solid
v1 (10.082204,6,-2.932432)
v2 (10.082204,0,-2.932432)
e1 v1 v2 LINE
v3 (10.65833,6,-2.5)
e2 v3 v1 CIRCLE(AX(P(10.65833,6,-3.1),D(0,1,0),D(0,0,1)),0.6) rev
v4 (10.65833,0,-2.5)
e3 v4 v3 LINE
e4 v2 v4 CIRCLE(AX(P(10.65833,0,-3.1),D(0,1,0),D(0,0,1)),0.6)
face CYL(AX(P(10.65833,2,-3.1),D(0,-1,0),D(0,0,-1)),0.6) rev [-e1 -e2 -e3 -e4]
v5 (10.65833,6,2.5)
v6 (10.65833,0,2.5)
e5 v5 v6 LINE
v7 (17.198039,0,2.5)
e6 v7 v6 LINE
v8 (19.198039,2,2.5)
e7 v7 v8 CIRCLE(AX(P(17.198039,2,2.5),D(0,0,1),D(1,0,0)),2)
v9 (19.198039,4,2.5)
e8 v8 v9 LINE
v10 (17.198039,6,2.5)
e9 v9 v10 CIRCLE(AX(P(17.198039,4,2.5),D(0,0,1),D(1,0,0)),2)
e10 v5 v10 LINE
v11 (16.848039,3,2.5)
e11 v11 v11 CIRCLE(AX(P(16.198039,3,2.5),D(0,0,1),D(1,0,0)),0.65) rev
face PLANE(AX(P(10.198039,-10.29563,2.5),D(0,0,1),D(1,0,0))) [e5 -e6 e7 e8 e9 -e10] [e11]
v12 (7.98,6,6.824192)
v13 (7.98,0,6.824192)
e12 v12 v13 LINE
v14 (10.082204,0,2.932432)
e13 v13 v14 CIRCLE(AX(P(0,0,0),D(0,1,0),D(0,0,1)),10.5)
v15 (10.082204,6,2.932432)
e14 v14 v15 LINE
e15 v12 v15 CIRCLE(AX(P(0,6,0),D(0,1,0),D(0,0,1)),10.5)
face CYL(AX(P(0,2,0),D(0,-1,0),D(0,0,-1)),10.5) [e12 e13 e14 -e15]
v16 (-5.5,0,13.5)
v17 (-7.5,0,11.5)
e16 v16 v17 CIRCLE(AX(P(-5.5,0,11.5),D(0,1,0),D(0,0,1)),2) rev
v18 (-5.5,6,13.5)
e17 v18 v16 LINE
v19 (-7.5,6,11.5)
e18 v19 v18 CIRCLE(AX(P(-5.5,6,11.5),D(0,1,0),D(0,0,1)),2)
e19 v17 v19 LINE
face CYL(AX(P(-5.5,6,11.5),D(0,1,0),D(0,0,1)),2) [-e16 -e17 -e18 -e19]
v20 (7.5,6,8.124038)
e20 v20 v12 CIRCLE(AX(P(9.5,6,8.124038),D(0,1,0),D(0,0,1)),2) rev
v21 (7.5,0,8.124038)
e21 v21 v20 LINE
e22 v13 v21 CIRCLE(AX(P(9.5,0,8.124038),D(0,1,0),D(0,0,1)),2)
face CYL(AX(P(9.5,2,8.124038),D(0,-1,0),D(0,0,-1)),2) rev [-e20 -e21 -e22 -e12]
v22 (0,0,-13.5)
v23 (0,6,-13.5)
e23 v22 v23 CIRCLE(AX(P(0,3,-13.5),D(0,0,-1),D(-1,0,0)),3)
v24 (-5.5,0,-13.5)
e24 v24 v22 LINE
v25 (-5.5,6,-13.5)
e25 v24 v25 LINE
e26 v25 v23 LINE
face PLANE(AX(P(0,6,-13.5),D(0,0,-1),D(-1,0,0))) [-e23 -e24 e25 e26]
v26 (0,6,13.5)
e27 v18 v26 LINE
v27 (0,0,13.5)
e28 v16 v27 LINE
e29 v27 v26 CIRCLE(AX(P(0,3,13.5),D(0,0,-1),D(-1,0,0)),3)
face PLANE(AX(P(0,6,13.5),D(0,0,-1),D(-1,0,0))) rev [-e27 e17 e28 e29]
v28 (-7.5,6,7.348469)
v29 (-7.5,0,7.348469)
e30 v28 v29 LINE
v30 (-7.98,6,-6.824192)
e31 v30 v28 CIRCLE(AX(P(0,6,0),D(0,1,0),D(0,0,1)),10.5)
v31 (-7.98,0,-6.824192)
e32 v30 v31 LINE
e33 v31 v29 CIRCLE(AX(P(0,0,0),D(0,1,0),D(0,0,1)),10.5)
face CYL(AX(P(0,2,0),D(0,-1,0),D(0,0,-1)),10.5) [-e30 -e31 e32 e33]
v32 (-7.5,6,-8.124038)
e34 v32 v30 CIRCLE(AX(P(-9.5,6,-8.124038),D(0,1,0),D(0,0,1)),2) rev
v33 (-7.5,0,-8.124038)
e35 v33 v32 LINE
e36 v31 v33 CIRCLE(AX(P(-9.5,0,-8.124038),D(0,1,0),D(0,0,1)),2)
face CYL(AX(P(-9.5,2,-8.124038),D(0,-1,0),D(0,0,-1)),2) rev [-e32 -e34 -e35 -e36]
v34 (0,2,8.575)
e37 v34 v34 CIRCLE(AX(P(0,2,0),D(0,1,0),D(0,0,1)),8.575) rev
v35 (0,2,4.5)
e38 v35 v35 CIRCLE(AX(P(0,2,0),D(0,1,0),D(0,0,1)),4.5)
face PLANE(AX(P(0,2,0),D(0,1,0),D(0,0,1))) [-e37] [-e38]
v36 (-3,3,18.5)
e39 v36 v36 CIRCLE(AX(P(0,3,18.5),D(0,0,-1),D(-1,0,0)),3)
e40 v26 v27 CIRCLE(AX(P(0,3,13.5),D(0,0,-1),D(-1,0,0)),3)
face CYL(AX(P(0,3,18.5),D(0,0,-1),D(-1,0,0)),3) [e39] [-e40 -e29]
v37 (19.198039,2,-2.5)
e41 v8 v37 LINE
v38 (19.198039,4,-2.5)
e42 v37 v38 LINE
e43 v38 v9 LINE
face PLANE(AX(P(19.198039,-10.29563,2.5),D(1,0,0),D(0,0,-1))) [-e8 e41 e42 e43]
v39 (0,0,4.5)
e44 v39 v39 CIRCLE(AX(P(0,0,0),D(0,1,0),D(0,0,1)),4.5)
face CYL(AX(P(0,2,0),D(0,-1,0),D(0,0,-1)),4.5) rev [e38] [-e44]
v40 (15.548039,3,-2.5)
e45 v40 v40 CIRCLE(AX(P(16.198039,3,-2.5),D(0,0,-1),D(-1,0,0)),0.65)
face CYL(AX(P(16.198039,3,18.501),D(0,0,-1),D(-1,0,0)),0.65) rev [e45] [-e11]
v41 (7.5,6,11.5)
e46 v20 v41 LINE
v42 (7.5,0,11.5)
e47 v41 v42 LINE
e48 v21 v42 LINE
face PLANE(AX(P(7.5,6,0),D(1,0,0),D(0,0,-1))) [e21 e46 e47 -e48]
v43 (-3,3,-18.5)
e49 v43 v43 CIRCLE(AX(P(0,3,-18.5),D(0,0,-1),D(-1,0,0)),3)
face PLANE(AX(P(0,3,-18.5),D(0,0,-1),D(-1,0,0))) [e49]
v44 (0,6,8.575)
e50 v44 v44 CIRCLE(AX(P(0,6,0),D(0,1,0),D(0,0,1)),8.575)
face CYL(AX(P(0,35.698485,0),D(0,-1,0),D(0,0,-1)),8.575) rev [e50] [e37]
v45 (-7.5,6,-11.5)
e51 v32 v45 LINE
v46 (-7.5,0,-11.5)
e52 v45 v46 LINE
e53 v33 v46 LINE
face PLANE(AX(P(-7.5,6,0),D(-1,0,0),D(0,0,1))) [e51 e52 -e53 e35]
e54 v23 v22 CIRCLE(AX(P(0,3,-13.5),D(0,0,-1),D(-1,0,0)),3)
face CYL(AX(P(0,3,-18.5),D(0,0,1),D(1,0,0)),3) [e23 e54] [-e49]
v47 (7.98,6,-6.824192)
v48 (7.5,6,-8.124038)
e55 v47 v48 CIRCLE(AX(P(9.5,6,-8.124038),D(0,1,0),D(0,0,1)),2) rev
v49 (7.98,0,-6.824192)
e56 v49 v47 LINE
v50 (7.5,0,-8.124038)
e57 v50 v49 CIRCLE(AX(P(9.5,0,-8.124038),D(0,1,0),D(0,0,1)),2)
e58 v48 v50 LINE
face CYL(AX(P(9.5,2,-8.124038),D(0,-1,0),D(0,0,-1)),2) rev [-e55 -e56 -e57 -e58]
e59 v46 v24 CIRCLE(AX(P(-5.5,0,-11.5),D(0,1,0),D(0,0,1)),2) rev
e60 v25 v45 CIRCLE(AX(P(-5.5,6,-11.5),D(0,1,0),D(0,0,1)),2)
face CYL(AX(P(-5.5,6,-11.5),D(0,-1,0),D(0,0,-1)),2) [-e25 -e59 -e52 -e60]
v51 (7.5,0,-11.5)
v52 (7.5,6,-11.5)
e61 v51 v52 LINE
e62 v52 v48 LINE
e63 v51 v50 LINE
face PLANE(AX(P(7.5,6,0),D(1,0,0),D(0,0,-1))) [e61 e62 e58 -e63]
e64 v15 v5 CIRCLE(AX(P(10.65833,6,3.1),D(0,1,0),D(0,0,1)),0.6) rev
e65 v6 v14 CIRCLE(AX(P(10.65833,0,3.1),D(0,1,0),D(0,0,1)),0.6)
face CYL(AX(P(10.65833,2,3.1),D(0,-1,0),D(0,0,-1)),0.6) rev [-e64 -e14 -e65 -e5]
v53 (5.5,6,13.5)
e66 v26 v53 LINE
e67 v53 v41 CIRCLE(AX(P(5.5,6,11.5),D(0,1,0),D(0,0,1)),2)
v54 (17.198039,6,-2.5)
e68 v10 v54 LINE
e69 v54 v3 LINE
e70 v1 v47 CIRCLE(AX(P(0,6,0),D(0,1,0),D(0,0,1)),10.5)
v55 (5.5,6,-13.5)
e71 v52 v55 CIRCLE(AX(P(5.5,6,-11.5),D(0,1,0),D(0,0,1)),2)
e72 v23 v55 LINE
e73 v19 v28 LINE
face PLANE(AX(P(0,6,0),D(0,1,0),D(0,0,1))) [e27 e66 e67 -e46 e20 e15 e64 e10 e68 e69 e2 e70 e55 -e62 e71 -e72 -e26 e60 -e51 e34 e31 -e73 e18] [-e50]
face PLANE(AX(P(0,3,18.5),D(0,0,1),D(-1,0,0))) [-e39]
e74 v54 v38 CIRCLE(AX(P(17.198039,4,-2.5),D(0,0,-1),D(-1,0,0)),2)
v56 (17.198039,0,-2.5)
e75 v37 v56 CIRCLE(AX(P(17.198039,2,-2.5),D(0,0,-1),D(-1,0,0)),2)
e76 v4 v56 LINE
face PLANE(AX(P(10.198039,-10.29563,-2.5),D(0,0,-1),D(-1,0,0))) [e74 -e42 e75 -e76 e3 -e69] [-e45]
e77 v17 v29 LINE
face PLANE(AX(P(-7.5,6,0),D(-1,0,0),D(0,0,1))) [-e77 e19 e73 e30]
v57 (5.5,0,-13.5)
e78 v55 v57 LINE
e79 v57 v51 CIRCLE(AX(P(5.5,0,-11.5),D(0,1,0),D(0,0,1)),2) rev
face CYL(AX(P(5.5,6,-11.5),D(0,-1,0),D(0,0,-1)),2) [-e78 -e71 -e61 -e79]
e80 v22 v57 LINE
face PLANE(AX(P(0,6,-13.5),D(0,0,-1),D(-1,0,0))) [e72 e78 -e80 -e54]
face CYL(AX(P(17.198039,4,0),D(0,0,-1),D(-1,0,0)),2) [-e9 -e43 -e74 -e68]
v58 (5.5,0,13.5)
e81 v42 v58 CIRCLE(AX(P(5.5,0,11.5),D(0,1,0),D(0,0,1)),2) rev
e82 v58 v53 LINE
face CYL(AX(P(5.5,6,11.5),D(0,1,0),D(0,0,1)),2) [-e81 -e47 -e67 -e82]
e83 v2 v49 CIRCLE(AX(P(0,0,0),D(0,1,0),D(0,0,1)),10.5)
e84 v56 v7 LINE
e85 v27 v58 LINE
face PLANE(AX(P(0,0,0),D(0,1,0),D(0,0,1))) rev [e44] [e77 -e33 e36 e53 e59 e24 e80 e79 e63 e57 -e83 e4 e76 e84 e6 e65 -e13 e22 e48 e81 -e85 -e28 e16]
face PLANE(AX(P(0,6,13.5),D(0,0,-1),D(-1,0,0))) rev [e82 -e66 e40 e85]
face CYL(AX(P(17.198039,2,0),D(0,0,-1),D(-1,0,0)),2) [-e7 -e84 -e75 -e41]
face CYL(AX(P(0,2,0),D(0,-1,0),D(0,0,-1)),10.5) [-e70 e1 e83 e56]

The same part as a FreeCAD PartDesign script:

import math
import FreeCAD as App
import Part
import Sketcher
Q = App.Units.Quantity


def edges_at(feature, points):
    """Names of the edges that pass closest to the given points."""
    edges = feature.Shape.Edges
    near = lambda p: min(range(len(edges)), key=lambda i: edges[i].distToShape(Part.Vertex(*p))[0])
    return sorted({f"Edge{near(p) + 1}" for p in points})

doc = App.newDocument("Part")
body = doc.addObject("PartDesign::Body", "Body")

sketch1 = body.newObject("Sketcher::SketchObject", "Sketch")
sketch1.AttachmentSupport = (doc.getObject("XZ_Plane"), [""])
sketch1.MapMode = "FlatFace"
sketch1.addGeometry([
    Part.LineSegment(App.Vector(-8, -14, 0), App.Vector(-8, -7, 0)),
    Part.ArcOfCircle(Part.Circle(App.Vector(0, 0, 0), App.Vector(0, 0, 1), 10), math.radians(-136), math.radians(-44)),
    Part.LineSegment(App.Vector(8, -7, 0), App.Vector(8, -14, 0)),
    Part.LineSegment(App.Vector(8, -14, 0), App.Vector(-8, -14, 0)),
], False)
sketch1.addConstraint([
    Sketcher.Constraint("Coincident", 0, 2, 1, 1),
    Sketcher.Constraint("Coincident", 1, 2, 2, 1),
    Sketcher.Constraint("Coincident", 2, 2, 3, 1),
    Sketcher.Constraint("Coincident", 3, 2, 0, 1),
    Sketcher.Constraint("Vertical", 0),
    Sketcher.Constraint("Vertical", 2),
    Sketcher.Constraint("Horizontal", 3),
    Sketcher.Constraint("Coincident", 1, 3, -1, 1),
    Sketcher.Constraint("Horizontal", 0, 2, 1, 2),
    Sketcher.Constraint("Radius", 1, Q("10.5 mm")),
    Sketcher.Constraint("DistanceX", 3, 2, 3, 1, Q("15 mm")),
    Sketcher.Constraint("DistanceY", 2, 2, -1, 1, Q("13.5 mm")),
])
pad1 = body.newObject("PartDesign::Pad", "Pad")
pad1.Profile = sketch1
pad1.Length = 6
pad1.Reversed = True
body2 = doc.addObject("PartDesign::Body", "Body001")

sketch2 = body2.newObject("Sketcher::SketchObject", "Sketch001")
sketch2.AttachmentSupport = (doc.getObject("XZ_Plane001"), [""])
sketch2.MapMode = "FlatFace"
sketch2.addGeometry([
    Part.ArcOfCircle(Part.Circle(App.Vector(0, 0, 0), App.Vector(0, 0, 1), 10), math.radians(44), math.radians(136)),
    Part.LineSegment(App.Vector(-8, 7, 0), App.Vector(-8, 14, 0)),
    Part.LineSegment(App.Vector(-8, 14, 0), App.Vector(8, 14, 0)),
    Part.LineSegment(App.Vector(8, 14, 0), App.Vector(8, 7, 0)),
], False)
sketch2.addConstraint([
    Sketcher.Constraint("Coincident", 0, 2, 1, 1),
    Sketcher.Constraint("Coincident", 1, 2, 2, 1),
    Sketcher.Constraint("Coincident", 2, 2, 3, 1),
    Sketcher.Constraint("Coincident", 3, 2, 0, 1),
    Sketcher.Constraint("Vertical", 1),
    Sketcher.Constraint("Horizontal", 2),
    Sketcher.Constraint("Vertical", 3),
    Sketcher.Constraint("Coincident", 0, 3, -1, 1),
    Sketcher.Constraint("Horizontal", 0, 2, 3, 2),
    Sketcher.Constraint("Radius", 0, Q("10.5 mm")),
    Sketcher.Constraint("DistanceX", 2, 1, 2, 2, Q("15 mm")),
    Sketcher.Constraint("DistanceY", -1, 1, 1, 2, Q("13.5 mm")),
])
pad2 = body2.newObject("PartDesign::Pad", "Pad001")
pad2.Profile = sketch2
pad2.Length = 6
pad2.Reversed = True
body.AllowCompound = True
doc.recompute()

boolean = body.newObject("PartDesign::Boolean", "Boolean")
boolean.Type = "Fuse"
boolean.addObjects([body2])

sketch3 = body.newObject("Sketcher::SketchObject", "Sketch002")
sketch3.AttachmentSupport = (doc.getObject("XZ_Plane"), [""])
sketch3.MapMode = "FlatFace"
sketch3.addGeometry([
    Part.Circle(App.Vector(0, 0, 0), App.Vector(0, 0, 1), 10.5),
    Part.Circle(App.Vector(0, 0, 0), App.Vector(0, 0, 1), 4.5),
], False)
sketch3.addConstraint([
    Sketcher.Constraint("Coincident", 0, 3, -1, 1),
    Sketcher.Constraint("Coincident", 1, 3, -1, 1),
    Sketcher.Constraint("Diameter", 0, Q("21 mm")),
    Sketcher.Constraint("Diameter", 1, Q("9 mm")),
])
pad3 = body.newObject("PartDesign::Pad", "Pad002")
pad3.Profile = sketch3
pad3.Length = 2
pad3.Reversed = True

sketch4 = body.newObject("Sketcher::SketchObject", "Sketch003")
sketch4.AttachmentSupport = (doc.getObject("XZ_Plane"), [""])
sketch4.MapMode = "FlatFace"
sketch4.AttachmentOffset = App.Placement(App.Vector(0, 0, -2), App.Rotation())
sketch4.addGeometry([
    Part.ArcOfCircle(Part.Circle(App.Vector(0, 0, 0), App.Vector(0, 0, 1), 10), math.radians(-136), math.radians(-44)),
    Part.ArcOfCircle(Part.Circle(App.Vector(0, 0, 0), App.Vector(0, 0, 1), 10), math.radians(136), math.radians(224)),
    Part.ArcOfCircle(Part.Circle(App.Vector(0, 0, 0), App.Vector(0, 0, 1), 10), math.radians(44), math.radians(136)),
    Part.ArcOfCircle(Part.Circle(App.Vector(0, 0, 0), App.Vector(0, 0, 1), 10), math.radians(-44), math.radians(44)),
    Part.Circle(App.Vector(0, 0, 0), App.Vector(0, 0, 1), 9),
], False)
sketch4.addConstraint([
    Sketcher.Constraint("Tangent", 0, 1, 1, 2),
    Sketcher.Constraint("Tangent", 1, 1, 2, 2),
    Sketcher.Constraint("Tangent", 2, 1, 3, 2),
    Sketcher.Constraint("Tangent", 3, 1, 0, 2),
    Sketcher.Constraint("Coincident", 0, 3, -1, 1),
    Sketcher.Constraint("Coincident", 4, 3, -1, 1),
    Sketcher.Constraint("Equal", 0, 1),
    Sketcher.Constraint("Horizontal", 1, 1, 2, 1),
    Sketcher.Constraint("Horizontal", 0, 1, 3, 1),
    Sketcher.Constraint("Vertical", 0, 1, 1, 1),
    Sketcher.Constraint("Radius", 0, Q("10.5 mm")),
    Sketcher.Constraint("Diameter", 4, Q("17.15 mm")),
    Sketcher.Constraint("DistanceX", 0, 1, -1, 1, Q("7.5 mm")),
])
pad4 = body.newObject("PartDesign::Pad", "Pad003")
pad4.Profile = sketch4
pad4.Length = 4
pad4.Reversed = True

sketch5 = body.newObject("Sketcher::SketchObject", "Sketch004")
sketch5.AttachmentSupport = (doc.getObject("XY_Plane"), [""])
sketch5.MapMode = "FlatFace"
sketch5.AttachmentOffset = App.Placement(App.Vector(0, 0, -13.5), App.Rotation())
sketch5.addGeometry(Part.Circle(App.Vector(0, 3, 0), App.Vector(0, 0, 1), 3), False)
sketch5.addConstraint([
    Sketcher.Constraint("PointOnObject", 0, 3, -2),
    Sketcher.Constraint("Diameter", 0, Q("6 mm")),
    Sketcher.Constraint("DistanceY", -1, 1, 0, 3, Q("3 mm")),
])
pad5 = body.newObject("PartDesign::Pad", "Pad004")
pad5.Profile = sketch5
pad5.Length = 5
pad5.Reversed = True
doc.recompute()

mirrored = body.newObject("PartDesign::Mirrored", "Mirrored")
mirrored.Originals = [pad5]
mirrored.MirrorPlane = (doc.getObject("XY_Plane"), [""])
body.Tip = mirrored

sketch6 = body.newObject("Sketcher::SketchObject", "Sketch005")
sketch6.AttachmentSupport = (doc.getObject("XZ_Plane"), [""])
sketch6.MapMode = "FlatFace"
sketch6.addGeometry([
    Part.LineSegment(App.Vector(10, 2, 0), App.Vector(19, 2, 0)),
    Part.LineSegment(App.Vector(19, 2, 0), App.Vector(19, -2, 0)),
    Part.LineSegment(App.Vector(19, -2, 0), App.Vector(10, -2, 0)),
    Part.ArcOfCircle(Part.Circle(App.Vector(0, 0, 0), App.Vector(0, 0, 1), 10), math.radians(-14), math.radians(14)),
], False)
sketch6.addConstraint([
    Sketcher.Constraint("Coincident", 0, 2, 1, 1),
    Sketcher.Constraint("Coincident", 1, 2, 2, 1),
    Sketcher.Constraint("Coincident", 2, 2, 3, 1),
    Sketcher.Constraint("Coincident", 3, 2, 0, 1),
    Sketcher.Constraint("Horizontal", 0),
    Sketcher.Constraint("Vertical", 1),
    Sketcher.Constraint("Horizontal", 2),
    Sketcher.Constraint("Coincident", 3, 3, -1, 1),
    Sketcher.Constraint("Vertical", 2, 2, 3, 2),
    Sketcher.Constraint("Radius", 3, Q("10.5 mm")),
    Sketcher.Constraint("DistanceX", 0, 1, 0, 2, Q("9 mm")),
    Sketcher.Constraint("DistanceY", 1, 2, 1, 1, Q("5 mm")),
])
pad6 = body.newObject("PartDesign::Pad", "Pad005")
pad6.Profile = sketch6
pad6.Length = 6
pad6.Reversed = True

sketch7 = body.newObject("Sketcher::SketchObject", "Sketch006")
sketch7.AttachmentSupport = (doc.getObject("XY_Plane"), [""])
sketch7.MapMode = "FlatFace"
sketch7.AttachmentOffset = App.Placement(App.Vector(0, 0, -2.5), App.Rotation())
sketch7.addGeometry(Part.Circle(App.Vector(16.2, 3, 0), App.Vector(0, 0, 1), 0.7), False)
sketch7.addConstraint([
    Sketcher.Constraint("Diameter", 0, Q("1.3 mm")),
    Sketcher.Constraint("DistanceY", -1, 1, 0, 3, Q("3 mm")),
    Sketcher.Constraint("DistanceX", -1, 1, 0, 3, Q("16.198039 mm")),
])
pocket1 = body.newObject("PartDesign::Pocket", "Pocket")
pocket1.Profile = sketch7
pocket1.Type = "UpToFirst"
pocket1.Reversed = True
doc.recompute()

fillet = body.newObject("PartDesign::Fillet", "Fillet")
fillet.Base = (pocket1, edges_at(pocket1, [
    (7.5, 4, 7.348),
    (-7.5, 3, 13.5),
    (7.5, 3, 13.5),
    (19.198, 6, 0),
    (19.198, 0, 0),
    (-7.5, 4, -7.348),
    (-7.5, 3, -13.5),
    (7.5, 3, -13.5),
    (7.5, 4, -7.348),
]))
fillet.Radius = 2
doc.recompute()

fillet2 = body.newObject("PartDesign::Fillet", "Fillet001")
fillet2.Base = (fillet, edges_at(fillet, [(10.198, 4, 2.5), (10.198, 4, -2.5)]))
fillet2.Radius = 0.6

doc.recompute()
